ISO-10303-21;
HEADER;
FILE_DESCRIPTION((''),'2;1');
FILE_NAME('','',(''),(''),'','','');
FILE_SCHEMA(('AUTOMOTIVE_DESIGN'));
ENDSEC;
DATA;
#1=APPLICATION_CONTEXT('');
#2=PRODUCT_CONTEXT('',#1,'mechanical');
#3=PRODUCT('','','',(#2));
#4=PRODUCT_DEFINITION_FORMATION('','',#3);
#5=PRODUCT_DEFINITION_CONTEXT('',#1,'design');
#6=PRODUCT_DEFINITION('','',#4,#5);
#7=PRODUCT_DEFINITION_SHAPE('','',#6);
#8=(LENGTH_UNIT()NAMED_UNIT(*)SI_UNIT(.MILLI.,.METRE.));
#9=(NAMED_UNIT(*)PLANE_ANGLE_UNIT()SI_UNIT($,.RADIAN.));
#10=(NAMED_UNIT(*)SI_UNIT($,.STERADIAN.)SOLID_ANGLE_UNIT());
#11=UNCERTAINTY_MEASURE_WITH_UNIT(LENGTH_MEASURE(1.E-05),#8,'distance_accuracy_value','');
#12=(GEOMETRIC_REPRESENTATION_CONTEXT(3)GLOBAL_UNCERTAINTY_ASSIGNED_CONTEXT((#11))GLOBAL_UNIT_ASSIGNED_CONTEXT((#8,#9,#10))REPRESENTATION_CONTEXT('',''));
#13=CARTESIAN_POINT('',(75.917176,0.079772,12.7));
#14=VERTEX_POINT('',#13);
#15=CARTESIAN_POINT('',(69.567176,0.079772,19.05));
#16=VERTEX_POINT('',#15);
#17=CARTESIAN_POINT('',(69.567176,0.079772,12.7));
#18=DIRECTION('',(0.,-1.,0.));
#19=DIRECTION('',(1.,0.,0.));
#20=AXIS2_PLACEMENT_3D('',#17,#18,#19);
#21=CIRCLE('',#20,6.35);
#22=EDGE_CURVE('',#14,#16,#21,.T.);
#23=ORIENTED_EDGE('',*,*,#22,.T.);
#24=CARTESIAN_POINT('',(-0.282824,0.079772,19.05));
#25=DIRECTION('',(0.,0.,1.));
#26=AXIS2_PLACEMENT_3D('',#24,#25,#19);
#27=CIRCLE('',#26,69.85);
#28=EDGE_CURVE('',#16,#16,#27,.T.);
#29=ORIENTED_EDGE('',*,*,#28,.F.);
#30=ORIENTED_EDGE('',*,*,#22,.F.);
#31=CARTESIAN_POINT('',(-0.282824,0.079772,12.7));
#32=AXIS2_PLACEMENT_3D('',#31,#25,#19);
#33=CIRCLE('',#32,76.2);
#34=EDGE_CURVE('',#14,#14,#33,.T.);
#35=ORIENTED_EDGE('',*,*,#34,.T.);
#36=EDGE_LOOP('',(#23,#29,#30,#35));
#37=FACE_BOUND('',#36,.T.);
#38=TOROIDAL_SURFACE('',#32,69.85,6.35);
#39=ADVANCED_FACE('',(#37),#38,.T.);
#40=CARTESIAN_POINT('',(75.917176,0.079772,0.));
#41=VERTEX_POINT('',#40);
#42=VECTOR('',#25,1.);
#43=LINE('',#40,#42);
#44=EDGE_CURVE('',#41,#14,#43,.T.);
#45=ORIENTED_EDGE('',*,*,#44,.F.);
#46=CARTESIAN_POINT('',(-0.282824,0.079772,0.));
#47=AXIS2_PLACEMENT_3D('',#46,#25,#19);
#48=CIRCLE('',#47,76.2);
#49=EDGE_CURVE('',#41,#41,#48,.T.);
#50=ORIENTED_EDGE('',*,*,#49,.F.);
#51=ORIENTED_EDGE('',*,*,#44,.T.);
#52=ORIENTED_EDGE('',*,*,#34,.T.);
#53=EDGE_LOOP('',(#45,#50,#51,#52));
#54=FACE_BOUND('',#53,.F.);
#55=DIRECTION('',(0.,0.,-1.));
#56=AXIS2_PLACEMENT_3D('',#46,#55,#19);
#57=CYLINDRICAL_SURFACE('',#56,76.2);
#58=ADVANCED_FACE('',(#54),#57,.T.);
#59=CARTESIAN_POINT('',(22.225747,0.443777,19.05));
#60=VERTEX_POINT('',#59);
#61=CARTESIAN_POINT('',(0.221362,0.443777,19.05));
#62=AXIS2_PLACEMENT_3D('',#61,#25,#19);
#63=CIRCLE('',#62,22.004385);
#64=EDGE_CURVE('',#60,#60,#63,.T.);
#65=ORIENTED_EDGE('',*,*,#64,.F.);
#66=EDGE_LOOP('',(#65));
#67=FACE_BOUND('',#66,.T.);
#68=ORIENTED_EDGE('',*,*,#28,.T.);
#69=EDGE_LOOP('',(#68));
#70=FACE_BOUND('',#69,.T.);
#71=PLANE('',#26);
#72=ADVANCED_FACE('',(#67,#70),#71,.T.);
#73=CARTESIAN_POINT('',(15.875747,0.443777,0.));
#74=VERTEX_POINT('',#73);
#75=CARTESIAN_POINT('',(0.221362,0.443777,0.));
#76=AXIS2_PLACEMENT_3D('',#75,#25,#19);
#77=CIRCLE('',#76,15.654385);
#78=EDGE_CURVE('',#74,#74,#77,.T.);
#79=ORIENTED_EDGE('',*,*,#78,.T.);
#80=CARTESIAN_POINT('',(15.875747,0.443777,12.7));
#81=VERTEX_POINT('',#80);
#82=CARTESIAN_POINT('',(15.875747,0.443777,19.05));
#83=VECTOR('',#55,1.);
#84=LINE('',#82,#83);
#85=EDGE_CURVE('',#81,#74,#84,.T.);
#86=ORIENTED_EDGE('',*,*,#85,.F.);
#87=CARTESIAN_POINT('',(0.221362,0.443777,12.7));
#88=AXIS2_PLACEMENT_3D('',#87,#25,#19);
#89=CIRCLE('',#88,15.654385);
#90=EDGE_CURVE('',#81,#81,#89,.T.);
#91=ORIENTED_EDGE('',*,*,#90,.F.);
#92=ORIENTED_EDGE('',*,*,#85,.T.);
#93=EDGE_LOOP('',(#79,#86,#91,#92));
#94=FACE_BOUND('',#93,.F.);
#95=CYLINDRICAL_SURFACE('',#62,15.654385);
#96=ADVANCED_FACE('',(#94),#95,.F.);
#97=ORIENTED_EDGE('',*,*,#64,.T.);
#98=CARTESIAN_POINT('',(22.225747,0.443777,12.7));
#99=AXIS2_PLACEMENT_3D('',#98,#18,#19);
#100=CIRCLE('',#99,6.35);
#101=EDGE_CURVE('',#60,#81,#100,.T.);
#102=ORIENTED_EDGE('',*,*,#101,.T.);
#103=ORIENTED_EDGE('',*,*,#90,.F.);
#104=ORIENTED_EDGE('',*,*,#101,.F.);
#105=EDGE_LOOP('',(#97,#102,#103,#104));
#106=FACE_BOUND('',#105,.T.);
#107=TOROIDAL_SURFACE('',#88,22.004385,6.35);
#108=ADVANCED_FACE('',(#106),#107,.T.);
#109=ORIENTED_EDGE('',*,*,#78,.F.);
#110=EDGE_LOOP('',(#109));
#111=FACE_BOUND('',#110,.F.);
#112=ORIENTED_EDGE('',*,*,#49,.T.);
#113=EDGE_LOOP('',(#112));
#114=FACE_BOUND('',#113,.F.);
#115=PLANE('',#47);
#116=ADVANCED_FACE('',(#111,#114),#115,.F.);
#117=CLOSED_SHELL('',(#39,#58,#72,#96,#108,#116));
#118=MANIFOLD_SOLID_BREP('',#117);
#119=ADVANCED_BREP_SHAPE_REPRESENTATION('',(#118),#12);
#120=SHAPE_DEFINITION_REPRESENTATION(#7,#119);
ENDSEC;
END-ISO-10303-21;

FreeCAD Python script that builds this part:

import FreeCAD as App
import Part
import Sketcher
Q = App.Units.Quantity


def edges_at(feature, points):
    """Names of the edges that pass closest to the given points."""
    edges = feature.Shape.Edges
    near = lambda p: min(range(len(edges)), key=lambda i: edges[i].distToShape(Part.Vertex(*p))[0])
    return sorted({f"Edge{near(p) + 1}" for p in points})

doc = App.newDocument("Part")
body = doc.addObject("PartDesign::Body", "Body")

# Sketch on XY plane
sketch1 = doc.addObject("Sketcher::SketchObject", "Sketch")
body.addObject(sketch1)
sketch1.AttachmentSupport = (doc.XY_Plane, [""])
sketch1.MapMode = "FlatFace"
sketch1.addGeometry(Part.Circle(App.Vector(0, 0, 0), App.Vector(0, 0, 1), 76), False)
sketch1.addConstraint(Sketcher.Constraint("Diameter", 0, Q("6 in")))
sketch1.addConstraint(Sketcher.Constraint("DistanceX", 0, 3, -1, 1, Q("0.282824 mm")))
sketch1.addConstraint(Sketcher.Constraint("DistanceY", -1, 1, 0, 3, Q("0.079772 mm")))
pad1 = doc.addObject("PartDesign::Pad", "Pad")
body.addObject(pad1)
pad1.Profile = sketch1
pad1.Length = Q("0.75 in")

# Sketch on XY plane
sketch2 = doc.addObject("Sketcher::SketchObject", "Sketch001")
body.addObject(sketch2)
sketch2.AttachmentSupport = (doc.XY_Plane, [""])
sketch2.MapMode = "FlatFace"
sketch2.AttachmentOffset = App.Placement(App.Vector(0, 0, 0.75 * 25.4), App.Rotation())
sketch2.addGeometry(Part.Circle(App.Vector(0, 0, 0), App.Vector(0, 0, 1), 16), False)
sketch2.addConstraint(Sketcher.Constraint("Diameter", 0, Q("31.308769 mm")))
sketch2.addConstraint(Sketcher.Constraint("DistanceX", -1, 1, 0, 3, Q("0.221362 mm")))
sketch2.addConstraint(Sketcher.Constraint("DistanceY", -1, 1, 0, 3, Q("0.443777 mm")))
pocket1 = doc.addObject("PartDesign::Pocket", "Pocket")
body.addObject(pocket1)
pocket1.Profile = sketch2
pocket1.Type = "ThroughAll"
doc.recompute()

fillet = doc.addObject("PartDesign::Fillet", "Fillet")
body.addObject(fillet)
fillet.Base = (pocket1, edges_at(pocket1, [(-76.483, 0.08, 19.05), (-15.433, 0.444, 19.05)]))
fillet.Radius = Q("0.25 in")

doc.recompute()
